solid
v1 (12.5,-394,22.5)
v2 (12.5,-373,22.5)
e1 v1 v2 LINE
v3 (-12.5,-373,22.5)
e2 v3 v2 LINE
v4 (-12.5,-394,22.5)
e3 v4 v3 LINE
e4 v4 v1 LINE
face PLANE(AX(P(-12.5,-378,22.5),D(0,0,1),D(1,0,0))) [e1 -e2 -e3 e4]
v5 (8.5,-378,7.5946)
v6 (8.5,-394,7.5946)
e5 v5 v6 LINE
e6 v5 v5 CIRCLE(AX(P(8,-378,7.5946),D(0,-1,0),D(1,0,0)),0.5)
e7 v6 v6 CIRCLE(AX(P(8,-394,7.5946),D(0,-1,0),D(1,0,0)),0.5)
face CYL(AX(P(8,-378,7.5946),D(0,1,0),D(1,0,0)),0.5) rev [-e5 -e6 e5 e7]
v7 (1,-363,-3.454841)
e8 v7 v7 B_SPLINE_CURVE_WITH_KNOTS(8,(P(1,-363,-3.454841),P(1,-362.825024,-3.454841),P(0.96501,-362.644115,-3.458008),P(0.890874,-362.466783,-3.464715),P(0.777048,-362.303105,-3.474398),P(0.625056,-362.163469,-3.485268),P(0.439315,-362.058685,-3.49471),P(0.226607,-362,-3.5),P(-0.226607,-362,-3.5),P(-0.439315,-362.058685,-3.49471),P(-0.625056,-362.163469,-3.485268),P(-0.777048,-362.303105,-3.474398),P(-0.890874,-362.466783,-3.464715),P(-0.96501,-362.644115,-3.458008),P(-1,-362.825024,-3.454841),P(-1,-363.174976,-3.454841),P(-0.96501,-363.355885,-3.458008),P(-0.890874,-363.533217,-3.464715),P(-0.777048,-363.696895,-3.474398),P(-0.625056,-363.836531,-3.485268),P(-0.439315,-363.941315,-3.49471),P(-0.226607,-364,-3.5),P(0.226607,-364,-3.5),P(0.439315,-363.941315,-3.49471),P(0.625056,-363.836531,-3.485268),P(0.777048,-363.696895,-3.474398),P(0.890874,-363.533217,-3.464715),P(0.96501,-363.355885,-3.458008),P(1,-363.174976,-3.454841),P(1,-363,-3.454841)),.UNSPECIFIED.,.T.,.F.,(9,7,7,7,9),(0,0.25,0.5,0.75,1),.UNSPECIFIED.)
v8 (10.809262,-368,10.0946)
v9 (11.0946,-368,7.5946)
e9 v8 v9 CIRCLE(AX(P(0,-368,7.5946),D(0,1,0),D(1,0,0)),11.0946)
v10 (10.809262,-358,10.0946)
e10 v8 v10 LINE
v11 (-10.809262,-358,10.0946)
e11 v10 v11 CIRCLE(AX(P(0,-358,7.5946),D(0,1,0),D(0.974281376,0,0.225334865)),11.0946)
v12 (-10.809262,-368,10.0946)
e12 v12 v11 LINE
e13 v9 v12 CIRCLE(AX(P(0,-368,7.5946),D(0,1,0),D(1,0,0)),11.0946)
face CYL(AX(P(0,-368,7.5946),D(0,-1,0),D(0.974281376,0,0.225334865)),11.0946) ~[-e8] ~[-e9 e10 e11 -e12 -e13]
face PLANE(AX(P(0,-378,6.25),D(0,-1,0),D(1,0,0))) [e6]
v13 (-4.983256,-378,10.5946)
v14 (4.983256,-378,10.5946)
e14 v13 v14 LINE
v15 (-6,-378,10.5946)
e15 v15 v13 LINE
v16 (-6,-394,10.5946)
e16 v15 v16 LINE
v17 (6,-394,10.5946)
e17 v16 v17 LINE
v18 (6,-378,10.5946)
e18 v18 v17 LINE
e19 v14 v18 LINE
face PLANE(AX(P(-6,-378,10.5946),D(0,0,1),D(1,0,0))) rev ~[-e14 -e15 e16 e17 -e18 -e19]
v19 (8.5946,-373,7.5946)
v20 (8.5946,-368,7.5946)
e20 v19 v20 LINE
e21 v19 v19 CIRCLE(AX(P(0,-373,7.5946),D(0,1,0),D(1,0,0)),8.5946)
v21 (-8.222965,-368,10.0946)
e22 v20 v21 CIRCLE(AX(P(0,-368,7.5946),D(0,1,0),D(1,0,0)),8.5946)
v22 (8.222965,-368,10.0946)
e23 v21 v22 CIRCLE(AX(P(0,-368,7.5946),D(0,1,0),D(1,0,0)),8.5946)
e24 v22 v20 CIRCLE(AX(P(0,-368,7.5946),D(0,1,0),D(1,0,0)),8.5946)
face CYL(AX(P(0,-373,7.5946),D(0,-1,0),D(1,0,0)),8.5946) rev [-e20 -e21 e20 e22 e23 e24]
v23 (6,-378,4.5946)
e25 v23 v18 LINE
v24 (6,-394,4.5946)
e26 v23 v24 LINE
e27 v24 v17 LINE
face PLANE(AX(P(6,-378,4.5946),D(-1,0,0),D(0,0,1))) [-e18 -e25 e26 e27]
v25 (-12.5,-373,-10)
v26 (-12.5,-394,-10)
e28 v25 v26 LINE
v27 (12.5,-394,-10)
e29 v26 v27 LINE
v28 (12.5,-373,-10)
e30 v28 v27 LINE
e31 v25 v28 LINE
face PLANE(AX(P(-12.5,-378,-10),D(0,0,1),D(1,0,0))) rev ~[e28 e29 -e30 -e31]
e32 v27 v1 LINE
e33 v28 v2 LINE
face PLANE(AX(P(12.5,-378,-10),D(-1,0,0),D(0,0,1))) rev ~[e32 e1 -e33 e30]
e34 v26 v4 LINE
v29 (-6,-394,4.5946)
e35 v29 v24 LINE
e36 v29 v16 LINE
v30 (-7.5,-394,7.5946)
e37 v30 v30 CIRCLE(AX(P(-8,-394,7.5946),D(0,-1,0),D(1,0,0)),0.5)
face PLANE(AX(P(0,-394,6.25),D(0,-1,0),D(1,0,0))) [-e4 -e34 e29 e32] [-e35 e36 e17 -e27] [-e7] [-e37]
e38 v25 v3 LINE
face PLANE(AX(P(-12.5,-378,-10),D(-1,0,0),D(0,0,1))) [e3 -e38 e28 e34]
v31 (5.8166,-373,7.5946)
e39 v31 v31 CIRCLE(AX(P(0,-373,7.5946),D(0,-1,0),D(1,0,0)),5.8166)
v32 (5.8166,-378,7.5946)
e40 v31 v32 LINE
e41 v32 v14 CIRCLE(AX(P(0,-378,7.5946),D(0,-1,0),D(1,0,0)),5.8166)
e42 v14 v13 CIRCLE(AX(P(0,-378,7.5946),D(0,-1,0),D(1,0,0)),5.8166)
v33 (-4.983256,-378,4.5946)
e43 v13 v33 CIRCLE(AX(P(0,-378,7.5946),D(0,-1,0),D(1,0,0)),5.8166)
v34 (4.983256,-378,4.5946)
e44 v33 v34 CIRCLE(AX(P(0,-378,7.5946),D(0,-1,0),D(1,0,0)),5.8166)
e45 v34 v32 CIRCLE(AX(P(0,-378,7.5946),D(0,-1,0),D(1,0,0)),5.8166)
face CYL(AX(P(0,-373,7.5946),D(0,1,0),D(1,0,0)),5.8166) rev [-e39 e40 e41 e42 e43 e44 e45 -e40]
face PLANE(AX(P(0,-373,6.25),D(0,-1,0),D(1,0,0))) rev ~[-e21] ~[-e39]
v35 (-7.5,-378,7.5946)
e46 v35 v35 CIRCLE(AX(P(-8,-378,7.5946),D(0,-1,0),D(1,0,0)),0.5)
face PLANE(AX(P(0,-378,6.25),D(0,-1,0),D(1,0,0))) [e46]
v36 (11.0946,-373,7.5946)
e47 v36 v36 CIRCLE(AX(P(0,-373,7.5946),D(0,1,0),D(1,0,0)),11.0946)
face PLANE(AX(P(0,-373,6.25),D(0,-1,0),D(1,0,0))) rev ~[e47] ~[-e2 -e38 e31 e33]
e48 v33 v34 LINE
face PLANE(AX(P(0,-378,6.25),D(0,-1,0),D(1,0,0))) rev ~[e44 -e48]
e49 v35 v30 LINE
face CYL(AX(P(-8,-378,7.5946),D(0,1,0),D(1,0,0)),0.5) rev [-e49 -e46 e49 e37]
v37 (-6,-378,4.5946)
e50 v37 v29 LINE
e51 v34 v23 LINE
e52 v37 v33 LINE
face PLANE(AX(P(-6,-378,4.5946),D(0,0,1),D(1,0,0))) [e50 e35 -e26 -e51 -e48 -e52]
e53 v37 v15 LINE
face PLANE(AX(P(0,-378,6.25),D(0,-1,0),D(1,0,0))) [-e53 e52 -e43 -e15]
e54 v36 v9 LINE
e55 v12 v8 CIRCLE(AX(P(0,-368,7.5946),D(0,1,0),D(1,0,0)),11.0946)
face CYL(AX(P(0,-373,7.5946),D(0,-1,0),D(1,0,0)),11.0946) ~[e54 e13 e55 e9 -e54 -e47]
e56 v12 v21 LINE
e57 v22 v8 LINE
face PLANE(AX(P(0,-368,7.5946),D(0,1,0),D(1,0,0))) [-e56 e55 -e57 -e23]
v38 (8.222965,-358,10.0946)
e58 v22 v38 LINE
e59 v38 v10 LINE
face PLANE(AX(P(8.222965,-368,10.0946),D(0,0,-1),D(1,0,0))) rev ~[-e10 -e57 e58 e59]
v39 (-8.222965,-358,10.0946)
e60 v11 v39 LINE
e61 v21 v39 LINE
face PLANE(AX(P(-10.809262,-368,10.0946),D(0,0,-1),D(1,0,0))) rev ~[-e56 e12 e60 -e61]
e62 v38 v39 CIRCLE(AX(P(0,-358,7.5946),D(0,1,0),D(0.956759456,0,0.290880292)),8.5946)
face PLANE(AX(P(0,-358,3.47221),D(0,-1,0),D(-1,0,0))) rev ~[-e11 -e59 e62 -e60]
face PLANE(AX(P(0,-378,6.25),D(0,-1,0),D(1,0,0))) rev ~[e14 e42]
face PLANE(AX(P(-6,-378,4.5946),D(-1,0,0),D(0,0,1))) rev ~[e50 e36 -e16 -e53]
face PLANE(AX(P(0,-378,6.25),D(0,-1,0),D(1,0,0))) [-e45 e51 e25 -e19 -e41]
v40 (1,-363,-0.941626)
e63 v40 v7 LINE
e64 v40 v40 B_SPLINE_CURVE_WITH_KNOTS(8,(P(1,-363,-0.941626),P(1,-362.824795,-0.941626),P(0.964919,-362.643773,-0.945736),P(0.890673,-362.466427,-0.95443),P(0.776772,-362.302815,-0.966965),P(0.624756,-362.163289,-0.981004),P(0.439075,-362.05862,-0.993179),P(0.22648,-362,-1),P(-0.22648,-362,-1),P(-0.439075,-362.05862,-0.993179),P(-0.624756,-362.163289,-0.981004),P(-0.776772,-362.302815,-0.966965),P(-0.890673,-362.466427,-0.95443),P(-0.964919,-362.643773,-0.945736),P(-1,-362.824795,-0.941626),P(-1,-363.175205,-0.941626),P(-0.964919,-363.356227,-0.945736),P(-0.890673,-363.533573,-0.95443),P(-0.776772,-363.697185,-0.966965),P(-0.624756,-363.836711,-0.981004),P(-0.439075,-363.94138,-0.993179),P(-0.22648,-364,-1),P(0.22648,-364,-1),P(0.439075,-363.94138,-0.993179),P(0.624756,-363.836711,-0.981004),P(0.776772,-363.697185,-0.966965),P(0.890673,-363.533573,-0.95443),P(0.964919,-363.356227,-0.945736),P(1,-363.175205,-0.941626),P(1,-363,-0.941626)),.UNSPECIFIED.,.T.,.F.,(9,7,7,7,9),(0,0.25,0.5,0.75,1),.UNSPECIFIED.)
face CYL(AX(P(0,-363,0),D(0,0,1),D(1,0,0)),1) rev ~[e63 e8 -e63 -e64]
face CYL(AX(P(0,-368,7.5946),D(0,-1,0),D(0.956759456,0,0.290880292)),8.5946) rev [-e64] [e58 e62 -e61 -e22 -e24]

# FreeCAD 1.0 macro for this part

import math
import FreeCAD as App
import Part
import Sketcher
from FreeCAD import Vector
Q = App.Units.Quantity


def add_polygon(sketch, points):
    """Adds a closed chain of lines whose ends are joined by coincident constraints."""
    first, n = sketch.GeometryCount, len(points)
    for a, b in zip(points, points[1:] + points[:1]):
        sketch.addGeometry(Part.LineSegment(App.Vector(*a, 0), App.Vector(*b, 0)), False)
    for i in range(n):
        sketch.addConstraint(Sketcher.Constraint("Coincident", first + i, 2, first + (i + 1) % n, 1))

doc = App.newDocument("Part")
body = doc.addObject("PartDesign::Body", "Body")

# Sketch on XZ plane
sketch1 = body.newObject("Sketcher::SketchObject", "Sketch")
sketch1.AttachmentSupport = (doc.getObject("XZ_Plane"), [""])
sketch1.MapMode = "FlatFace"
add_polygon(sketch1, [(-12, 22), (-12, -10), (12, -10), (12, 22)])  # lines 0-3
sketch1.addGeometry(Part.Circle(Vector(0, 8, 0), Vector(0, 0, 1), 6), False)  # 4
sketch1.addConstraint(Sketcher.Constraint("Vertical", 0))
sketch1.addConstraint(Sketcher.Constraint("Horizontal", 1))
sketch1.addConstraint(Sketcher.Constraint("Vertical", 2))
sketch1.addConstraint(Sketcher.Constraint("Horizontal", 3))
sketch1.addConstraint(Sketcher.Constraint("PointOnObject", 4, 3, -2))
sketch1.addConstraint(Sketcher.Constraint("DistanceX", 1, 1, 1, 2, Q("25 mm")))
sketch1.addConstraint(Sketcher.Constraint("DistanceY", 0, 2, 0, 1, Q("32.5 mm")))
sketch1.addConstraint(Sketcher.Constraint("DistanceY", 0, 2, -1, 1, Q("10 mm")))
sketch1.addConstraint(Sketcher.Constraint("Diameter", 4, Q("11.6332 mm")))
sketch1.addConstraint(Sketcher.Constraint("DistanceX", 0, 2, -1, 1, Q("12.5 mm")))
sketch1.addConstraint(Sketcher.Constraint("DistanceY", -1, 1, 4, 3, Q("7.5946 mm")))
pad1 = body.newObject("PartDesign::Pad", "Pad")
pad1.Profile = sketch1
pad1.Length = 5

# Sketch on XZ plane
sketch2 = body.newObject("Sketcher::SketchObject", "Sketch001")
sketch2.AttachmentSupport = (doc.getObject("XZ_Plane"), [""])
sketch2.MapMode = "FlatFace"
sketch2.addGeometry(Part.Circle(Vector(0, 8, 0), Vector(0, 0, 1), 11), False)
sketch2.addGeometry(Part.Circle(Vector(0, 8, 0), Vector(0, 0, 1), 9), False)
sketch2.addConstraint(Sketcher.Constraint("Coincident", 1, 3, 0, 3))
sketch2.addConstraint(Sketcher.Constraint("PointOnObject", 0, 3, -2))
sketch2.addConstraint(Sketcher.Constraint("Diameter", 0, Q("22.1892 mm")))
sketch2.addConstraint(Sketcher.Constraint("Diameter", 1, Q("17.1892 mm")))
sketch2.addConstraint(Sketcher.Constraint("DistanceY", -1, 1, 0, 3, Q("7.5946 mm")))
pad2 = body.newObject("PartDesign::Pad", "Pad001")
pad2.Profile = sketch2
pad2.Length = 5
pad2.Reversed = True

# Sketch on XZ plane
sketch3 = body.newObject("Sketcher::SketchObject", "Sketch002")
sketch3.AttachmentSupport = (doc.getObject("XZ_Plane"), [""])
sketch3.MapMode = "FlatFace"
sketch3.AttachmentOffset = App.Placement(Vector(0, 0, 5), App.Rotation())
add_polygon(sketch3, [(-12.5, 22.5), (-12.5, -10), (12.5, -10), (12.5, 22.5)])  # lines 0-3
sketch3.addGeometry(Part.Circle(Vector(-8, 7.6, 0), Vector(0, 0, 1), 0.5), False)  # 4
add_polygon(sketch3, [(6, 4.6), (-6, 4.6), (-6, 10.6), (6, 10.6)])  # lines 5-8
sketch3.addGeometry(Part.Circle(Vector(8, 7.6, 0), Vector(0, 0, 1), 0.5), False)  # 9
sketch3.addConstraint(Sketcher.Constraint("Vertical", 0))
sketch3.addConstraint(Sketcher.Constraint("Horizontal", 1))
sketch3.addConstraint(Sketcher.Constraint("Vertical", 2))
sketch3.addConstraint(Sketcher.Constraint("Horizontal", 3))
sketch3.addConstraint(Sketcher.Constraint("Horizontal", 5))
sketch3.addConstraint(Sketcher.Constraint("Vertical", 6))
sketch3.addConstraint(Sketcher.Constraint("Horizontal", 7))
sketch3.addConstraint(Sketcher.Constraint("Vertical", 8))
sketch3.addConstraint(Sketcher.Constraint("Equal", 4, 9))
sketch3.addConstraint(Sketcher.Constraint("Symmetric", 4, 3, 9, 3, -2))
sketch3.addConstraint(Sketcher.Constraint("Diameter", 4, Q("1 mm")))
sketch3.addConstraint(Sketcher.Constraint("DistanceX", 1, 1, 1, 2, Q("25 mm")))
sketch3.addConstraint(Sketcher.Constraint("DistanceX", 5, 2, 5, 1, Q("12 mm")))
sketch3.addConstraint(Sketcher.Constraint("DistanceY", 6, 1, 6, 2, Q("6 mm")))
sketch3.addConstraint(Sketcher.Constraint("DistanceY", 0, 2, 0, 1, Q("32.5 mm")))
sketch3.addConstraint(Sketcher.Constraint("DistanceX", 4, 3, -1, 1, Q("8 mm")))
sketch3.addConstraint(Sketcher.Constraint("DistanceY", 0, 2, -1, 1, Q("10 mm")))
sketch3.addConstraint(Sketcher.Constraint("DistanceX", 5, 2, -1, 1, Q("6 mm")))
sketch3.addConstraint(Sketcher.Constraint("DistanceY", 5, 2, 4, 3, Q("3 mm")))
sketch3.addConstraint(Sketcher.Constraint("DistanceX", 0, 2, -1, 1, Q("12.5 mm")))
sketch3.addConstraint(Sketcher.Constraint("DistanceY", -1, 1, 4, 3, Q("7.5946 mm")))
pad3 = body.newObject("PartDesign::Pad", "Pad002")
pad3.Profile = sketch3
pad3.Length = 16

# Sketch on XZ plane
sketch4 = body.newObject("Sketcher::SketchObject", "Sketch003")
sketch4.AttachmentSupport = (doc.getObject("XZ_Plane"), [""])
sketch4.MapMode = "FlatFace"
sketch4.AttachmentOffset = App.Placement(Vector(0, 0, -5), App.Rotation())
sketch4.addGeometry(Part.ArcOfCircle(Part.Circle(Vector(0, 7.6, 0), Vector(0, 0, 1), 8.6), math.radians(163), math.radians(377)), False)
sketch4.addGeometry(Part.LineSegment(Vector(8.2, 10.1, 0), Vector(10.8, 10.1, 0)), False)
sketch4.addGeometry(Part.ArcOfCircle(Part.Circle(Vector(0, 7.6, 0), Vector(0, 0, 1), 11.1), math.radians(167), math.radians(373)), False)
sketch4.addGeometry(Part.LineSegment(Vector(-10.8, 10.1, 0), Vector(-8.2, 10.1, 0)), False)
sketch4.addConstraint(Sketcher.Constraint("Coincident", 0, 2, 1, 1))
sketch4.addConstraint(Sketcher.Constraint("Coincident", 1, 2, 2, 2))
sketch4.addConstraint(Sketcher.Constraint("Coincident", 2, 1, 3, 1))
sketch4.addConstraint(Sketcher.Constraint("Coincident", 3, 2, 0, 1))
sketch4.addConstraint(Sketcher.Constraint("Horizontal", 1))
sketch4.addConstraint(Sketcher.Constraint("Horizontal", 3))
sketch4.addConstraint(Sketcher.Constraint("Coincident", 2, 3, 0, 3))
sketch4.addConstraint(Sketcher.Constraint("Symmetric", 1, 2, 2, 1, -2))
sketch4.addConstraint(Sketcher.Constraint("Radius", 0, Q("8.5946 mm")))
sketch4.addConstraint(Sketcher.Constraint("Radius", 2, Q("11.0946 mm")))
sketch4.addConstraint(Sketcher.Constraint("DistanceY", 0, 3, 0, 2, Q("2.5 mm")))
sketch4.addConstraint(Sketcher.Constraint("DistanceY", -1, 1, 0, 3, Q("7.5946 mm")))
pad4 = body.newObject("PartDesign::Pad", "Pad003")
pad4.Profile = sketch4
pad4.Length = 10
pad4.Reversed = True

# Sketch on XY plane
sketch5 = body.newObject("Sketcher::SketchObject", "Sketch004")
sketch5.AttachmentSupport = (doc.getObject("XY_Plane"), [""])
sketch5.MapMode = "FlatFace"
sketch5.addGeometry(Part.Circle(Vector(0, 10, 0), Vector(0, 0, 1), 1), False)
sketch5.addConstraint(Sketcher.Constraint("PointOnObject", 0, 3, -2))
sketch5.addConstraint(Sketcher.Constraint("Diameter", 0, Q("2 mm")))
sketch5.addConstraint(Sketcher.Constraint("DistanceY", -1, 1, 0, 3, Q("10 mm")))
pocket1 = body.newObject("PartDesign::Pocket", "Pocket")
pocket1.Profile = sketch5
pocket1.Length = 16
body2 = doc.addObject("PartDesign::Body", "Body001")
doc.recompute()

body.Placement = App.Placement(Vector(0, -373, 0), App.Rotation(Vector(0, 0, 1), 0))
boolean = body2.newObject("PartDesign::Boolean", "Boolean")
boolean.Type = "Fuse"
boolean.addObjects([body])

doc.recompute()
